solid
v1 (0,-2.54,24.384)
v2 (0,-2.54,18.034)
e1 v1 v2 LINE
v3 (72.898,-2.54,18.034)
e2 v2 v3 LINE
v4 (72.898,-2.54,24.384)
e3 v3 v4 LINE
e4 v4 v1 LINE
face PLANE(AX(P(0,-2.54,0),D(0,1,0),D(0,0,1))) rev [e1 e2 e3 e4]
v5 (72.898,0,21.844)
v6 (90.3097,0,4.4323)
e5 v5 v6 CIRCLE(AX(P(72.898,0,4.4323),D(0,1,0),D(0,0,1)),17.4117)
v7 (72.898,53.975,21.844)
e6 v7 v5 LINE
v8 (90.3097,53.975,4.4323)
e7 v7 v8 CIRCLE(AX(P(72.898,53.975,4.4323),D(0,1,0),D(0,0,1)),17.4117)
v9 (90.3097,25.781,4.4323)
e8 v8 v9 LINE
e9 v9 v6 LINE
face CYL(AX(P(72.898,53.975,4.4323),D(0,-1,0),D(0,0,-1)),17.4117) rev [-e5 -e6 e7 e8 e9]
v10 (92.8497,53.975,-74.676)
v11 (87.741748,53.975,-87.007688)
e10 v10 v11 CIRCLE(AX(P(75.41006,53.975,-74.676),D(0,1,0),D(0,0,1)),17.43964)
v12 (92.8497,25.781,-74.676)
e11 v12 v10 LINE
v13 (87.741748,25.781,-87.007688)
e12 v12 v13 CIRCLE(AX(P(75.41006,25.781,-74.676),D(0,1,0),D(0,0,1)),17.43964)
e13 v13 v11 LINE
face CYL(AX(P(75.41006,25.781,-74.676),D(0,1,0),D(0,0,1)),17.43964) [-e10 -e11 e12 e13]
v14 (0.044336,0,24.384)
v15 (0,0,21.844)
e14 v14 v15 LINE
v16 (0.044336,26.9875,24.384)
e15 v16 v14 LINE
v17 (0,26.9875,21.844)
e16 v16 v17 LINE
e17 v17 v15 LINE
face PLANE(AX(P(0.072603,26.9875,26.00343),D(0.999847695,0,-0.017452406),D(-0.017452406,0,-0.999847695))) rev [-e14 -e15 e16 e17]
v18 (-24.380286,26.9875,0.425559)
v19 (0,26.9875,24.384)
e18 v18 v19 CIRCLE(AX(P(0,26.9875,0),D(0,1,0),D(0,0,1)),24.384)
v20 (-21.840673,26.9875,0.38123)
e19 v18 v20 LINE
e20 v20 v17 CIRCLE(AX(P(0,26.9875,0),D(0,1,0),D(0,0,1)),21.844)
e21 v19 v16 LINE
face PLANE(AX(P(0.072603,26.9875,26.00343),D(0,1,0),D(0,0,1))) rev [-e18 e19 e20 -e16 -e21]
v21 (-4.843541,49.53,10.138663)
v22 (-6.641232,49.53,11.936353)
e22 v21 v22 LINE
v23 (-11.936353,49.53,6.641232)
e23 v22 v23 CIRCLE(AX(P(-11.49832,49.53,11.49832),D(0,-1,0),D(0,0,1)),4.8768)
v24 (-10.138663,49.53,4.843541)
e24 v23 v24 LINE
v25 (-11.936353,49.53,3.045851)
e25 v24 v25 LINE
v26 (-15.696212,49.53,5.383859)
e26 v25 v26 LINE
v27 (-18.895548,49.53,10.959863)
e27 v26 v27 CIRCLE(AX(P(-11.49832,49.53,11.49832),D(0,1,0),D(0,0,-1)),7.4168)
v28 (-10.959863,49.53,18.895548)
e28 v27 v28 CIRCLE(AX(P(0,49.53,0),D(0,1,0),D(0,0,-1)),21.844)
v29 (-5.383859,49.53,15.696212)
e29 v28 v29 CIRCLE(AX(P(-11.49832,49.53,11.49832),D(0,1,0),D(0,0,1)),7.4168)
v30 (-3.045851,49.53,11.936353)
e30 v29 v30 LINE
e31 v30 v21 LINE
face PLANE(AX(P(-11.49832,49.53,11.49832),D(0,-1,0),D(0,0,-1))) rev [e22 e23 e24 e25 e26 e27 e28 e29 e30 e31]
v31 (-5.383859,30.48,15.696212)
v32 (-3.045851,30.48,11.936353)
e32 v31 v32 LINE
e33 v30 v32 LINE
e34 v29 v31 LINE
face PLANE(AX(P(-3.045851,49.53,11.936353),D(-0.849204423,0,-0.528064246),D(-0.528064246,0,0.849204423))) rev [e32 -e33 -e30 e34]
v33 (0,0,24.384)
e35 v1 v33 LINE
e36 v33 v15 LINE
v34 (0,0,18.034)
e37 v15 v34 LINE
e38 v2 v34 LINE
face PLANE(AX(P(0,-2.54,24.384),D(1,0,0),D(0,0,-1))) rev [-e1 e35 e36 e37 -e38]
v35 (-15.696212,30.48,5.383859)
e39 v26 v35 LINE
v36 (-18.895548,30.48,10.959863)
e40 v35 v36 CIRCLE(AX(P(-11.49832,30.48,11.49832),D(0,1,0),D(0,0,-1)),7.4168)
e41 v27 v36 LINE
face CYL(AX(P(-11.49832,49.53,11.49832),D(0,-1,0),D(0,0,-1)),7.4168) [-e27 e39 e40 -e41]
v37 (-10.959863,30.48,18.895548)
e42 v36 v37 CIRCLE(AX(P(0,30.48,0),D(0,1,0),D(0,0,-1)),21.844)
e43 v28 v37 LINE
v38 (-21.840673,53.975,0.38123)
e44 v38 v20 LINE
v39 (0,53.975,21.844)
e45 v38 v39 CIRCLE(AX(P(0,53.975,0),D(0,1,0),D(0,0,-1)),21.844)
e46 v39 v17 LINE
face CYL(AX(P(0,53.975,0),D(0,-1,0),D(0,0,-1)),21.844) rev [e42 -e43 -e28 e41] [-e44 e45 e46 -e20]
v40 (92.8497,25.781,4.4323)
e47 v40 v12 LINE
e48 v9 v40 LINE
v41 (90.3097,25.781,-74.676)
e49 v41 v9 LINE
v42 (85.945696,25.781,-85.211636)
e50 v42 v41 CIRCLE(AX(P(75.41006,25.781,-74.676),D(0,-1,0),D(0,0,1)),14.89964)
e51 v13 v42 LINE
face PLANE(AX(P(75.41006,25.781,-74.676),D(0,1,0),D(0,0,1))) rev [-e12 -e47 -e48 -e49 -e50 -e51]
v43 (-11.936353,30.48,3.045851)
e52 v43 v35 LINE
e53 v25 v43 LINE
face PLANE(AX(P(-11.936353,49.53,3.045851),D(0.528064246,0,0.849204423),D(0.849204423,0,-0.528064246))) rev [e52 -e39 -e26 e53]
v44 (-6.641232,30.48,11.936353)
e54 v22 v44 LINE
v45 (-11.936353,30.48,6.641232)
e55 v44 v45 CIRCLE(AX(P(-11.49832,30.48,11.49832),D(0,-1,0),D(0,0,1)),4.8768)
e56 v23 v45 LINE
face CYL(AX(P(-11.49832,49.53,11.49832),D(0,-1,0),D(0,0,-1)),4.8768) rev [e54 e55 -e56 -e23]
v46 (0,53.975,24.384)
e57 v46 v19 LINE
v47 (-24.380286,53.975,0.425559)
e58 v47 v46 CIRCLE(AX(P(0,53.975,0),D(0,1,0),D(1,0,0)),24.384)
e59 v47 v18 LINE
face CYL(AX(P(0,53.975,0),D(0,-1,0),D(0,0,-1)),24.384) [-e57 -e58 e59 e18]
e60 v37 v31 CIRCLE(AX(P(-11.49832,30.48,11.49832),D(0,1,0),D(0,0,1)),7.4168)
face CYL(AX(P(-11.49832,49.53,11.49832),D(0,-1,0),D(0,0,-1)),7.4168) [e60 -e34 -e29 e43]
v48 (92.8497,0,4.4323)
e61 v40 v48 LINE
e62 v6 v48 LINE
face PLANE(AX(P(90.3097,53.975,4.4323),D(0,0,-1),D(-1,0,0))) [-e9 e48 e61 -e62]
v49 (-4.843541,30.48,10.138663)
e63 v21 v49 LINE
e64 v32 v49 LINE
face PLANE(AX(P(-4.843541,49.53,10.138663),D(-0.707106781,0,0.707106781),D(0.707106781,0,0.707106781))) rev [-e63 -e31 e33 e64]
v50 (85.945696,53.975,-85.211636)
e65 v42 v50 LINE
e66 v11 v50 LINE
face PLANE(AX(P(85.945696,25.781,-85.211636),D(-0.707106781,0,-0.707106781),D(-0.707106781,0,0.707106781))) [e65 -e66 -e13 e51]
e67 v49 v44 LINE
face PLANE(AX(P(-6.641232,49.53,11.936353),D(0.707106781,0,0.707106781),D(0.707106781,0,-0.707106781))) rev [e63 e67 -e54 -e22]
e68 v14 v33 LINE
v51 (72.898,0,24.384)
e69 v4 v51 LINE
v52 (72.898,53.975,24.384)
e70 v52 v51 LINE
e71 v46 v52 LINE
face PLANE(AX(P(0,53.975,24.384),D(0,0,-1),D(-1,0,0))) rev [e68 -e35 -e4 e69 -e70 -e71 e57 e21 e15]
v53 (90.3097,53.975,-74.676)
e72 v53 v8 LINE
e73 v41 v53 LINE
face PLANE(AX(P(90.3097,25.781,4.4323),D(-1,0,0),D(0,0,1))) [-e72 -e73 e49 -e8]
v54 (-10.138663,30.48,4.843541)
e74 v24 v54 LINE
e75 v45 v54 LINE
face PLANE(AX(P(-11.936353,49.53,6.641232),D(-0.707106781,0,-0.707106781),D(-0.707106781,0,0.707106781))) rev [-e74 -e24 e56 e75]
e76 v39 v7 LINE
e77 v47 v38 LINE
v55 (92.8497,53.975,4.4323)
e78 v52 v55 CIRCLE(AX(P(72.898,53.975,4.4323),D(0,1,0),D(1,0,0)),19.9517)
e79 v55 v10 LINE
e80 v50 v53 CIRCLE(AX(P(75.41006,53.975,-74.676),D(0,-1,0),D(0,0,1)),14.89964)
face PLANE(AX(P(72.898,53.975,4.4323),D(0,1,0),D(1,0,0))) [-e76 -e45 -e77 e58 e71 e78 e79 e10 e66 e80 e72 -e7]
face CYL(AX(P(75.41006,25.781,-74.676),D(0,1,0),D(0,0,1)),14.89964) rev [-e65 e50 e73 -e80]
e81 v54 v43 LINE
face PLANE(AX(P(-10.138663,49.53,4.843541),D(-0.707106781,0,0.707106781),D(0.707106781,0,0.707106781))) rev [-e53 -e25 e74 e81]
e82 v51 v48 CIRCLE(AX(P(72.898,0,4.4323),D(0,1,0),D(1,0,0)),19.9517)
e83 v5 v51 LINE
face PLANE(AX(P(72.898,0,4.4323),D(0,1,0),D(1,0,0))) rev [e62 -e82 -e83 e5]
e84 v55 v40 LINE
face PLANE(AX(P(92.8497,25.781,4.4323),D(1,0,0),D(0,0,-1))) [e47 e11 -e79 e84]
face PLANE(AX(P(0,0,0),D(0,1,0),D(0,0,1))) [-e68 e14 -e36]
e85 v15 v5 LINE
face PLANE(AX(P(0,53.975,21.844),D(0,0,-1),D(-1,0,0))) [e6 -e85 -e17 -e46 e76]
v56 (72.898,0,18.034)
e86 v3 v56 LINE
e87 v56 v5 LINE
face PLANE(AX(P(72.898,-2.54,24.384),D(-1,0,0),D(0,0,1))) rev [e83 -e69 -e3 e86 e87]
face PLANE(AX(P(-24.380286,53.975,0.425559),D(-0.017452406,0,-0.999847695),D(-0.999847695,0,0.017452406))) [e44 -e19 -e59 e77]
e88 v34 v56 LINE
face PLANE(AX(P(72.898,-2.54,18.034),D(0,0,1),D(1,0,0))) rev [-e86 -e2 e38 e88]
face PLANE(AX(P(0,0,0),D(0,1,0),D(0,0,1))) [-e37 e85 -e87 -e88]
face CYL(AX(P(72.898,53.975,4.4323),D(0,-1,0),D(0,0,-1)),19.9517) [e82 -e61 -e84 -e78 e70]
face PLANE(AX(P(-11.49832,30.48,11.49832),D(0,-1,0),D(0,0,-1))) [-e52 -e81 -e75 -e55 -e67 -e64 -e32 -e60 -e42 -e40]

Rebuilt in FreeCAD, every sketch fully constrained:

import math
import FreeCAD as App
import Part
import Sketcher

V = App.Vector
Q = App.Units.Quantity

doc = App.newDocument("Part")
body = doc.addObject("PartDesign::Body", "Body")

# Sketch on XZ plane
sketch1 = body.newObject("Sketcher::SketchObject", "Sketch")
sketch1.AttachmentSupport = (doc.getObject("XZ_Plane"), [""])
sketch1.MapMode = "FlatFace"
sketch1.addGeometry(Part.ArcOfCircle(Part.Circle(V(0, 0, 0), V(0, 0, 1), 21.844), math.radians(90), math.radians(179)), False)
sketch1.addGeometry(Part.LineSegment(V(-21.840673, 0.38123, 0), V(-24.380286, 0.425559, 0)), False)
sketch1.addGeometry(Part.ArcOfCircle(Part.Circle(V(0, 0, 0), V(0, 0, 1), 24.384), math.radians(90), math.radians(179)), False)
sketch1.addGeometry(Part.LineSegment(V(0, 24.384, 0), V(72.898, 24.384, 0)), False)
sketch1.addGeometry(Part.ArcOfCircle(Part.Circle(V(72.898, 4.4323, 0), V(0, 0, 1), 19.9517), math.radians(0), math.radians(90)), False)
sketch1.addGeometry(Part.LineSegment(V(92.8497, 4.4323, 0), V(90.3097, 4.4323, 0)), False)
sketch1.addGeometry(Part.ArcOfCircle(Part.Circle(V(72.898, 4.4323, 0), V(0, 0, 1), 17.4117), math.radians(0), math.radians(90)), False)
sketch1.addGeometry(Part.LineSegment(V(72.898, 21.844, 0), V(0, 21.844, 0)), False)
sketch1.addConstraint(Sketcher.Constraint("Coincident", 0, 2, 1, 1))
sketch1.addConstraint(Sketcher.Constraint("Coincident", 1, 2, 2, 2))
sketch1.addConstraint(Sketcher.Constraint("Tangent", 2, 1, 3, 1))
sketch1.addConstraint(Sketcher.Constraint("Tangent", 3, 2, 4, 2))
sketch1.addConstraint(Sketcher.Constraint("Coincident", 4, 1, 5, 1))
sketch1.addConstraint(Sketcher.Constraint("Coincident", 5, 2, 6, 1))
sketch1.addConstraint(Sketcher.Constraint("Tangent", 6, 2, 7, 1))
sketch1.addConstraint(Sketcher.Constraint("Tangent", 7, 2, 0, 1))
sketch1.addConstraint(Sketcher.Constraint("Horizontal", 3))
sketch1.addConstraint(Sketcher.Constraint("Horizontal", 5))
sketch1.addConstraint(Sketcher.Constraint("Horizontal", 7))
sketch1.addConstraint(Sketcher.Constraint("Coincident", 0, 3, -1, 1))
sketch1.addConstraint(Sketcher.Constraint("Coincident", 2, 3, -1, 1))
sketch1.addConstraint(Sketcher.Constraint("Coincident", 6, 3, 4, 3))
sketch1.addConstraint(Sketcher.Constraint("Horizontal", 6, 3, 4, 1))
sketch1.addConstraint(Sketcher.Constraint("Radius", 0, Q("0.86 in")))
sketch1.addConstraint(Sketcher.Constraint("Radius", 2, Q("0.96 in")))
sketch1.addConstraint(Sketcher.Constraint("Angle", 1, Q("179 deg")))
sketch1.addConstraint(Sketcher.Constraint("DistanceX", 3, 1, 3, 2, Q("2.87 in")))
sketch1.addConstraint(Sketcher.Constraint("Radius", 4, Q("0.7855 in")))
sketch1.addConstraint(Sketcher.Constraint("DistanceY", -1, 1, 0, 2, 0.38123))
pad1 = body.newObject("PartDesign::Pad", "Pad")
pad1.Profile = sketch1
pad1.Length = Q("2.125 in")
pad1.Reversed = True

# Sketch on XZ plane
sketch2 = body.newObject("Sketcher::SketchObject", "Sketch001")
sketch2.AttachmentSupport = (doc.getObject("XZ_Plane"), [""])
sketch2.MapMode = "FlatFace"
sketch2.AttachmentOffset = App.Placement(V(0, 0, -1.2 * 25.4), App.Rotation())
sketch2.addGeometry(Part.LineSegment(V(-4.843541, 10.138663, 0), V(-6.641232, 11.936353, 0)), False)
sketch2.addGeometry(Part.ArcOfCircle(Part.Circle(V(-11.49832, 11.49832, 0), V(0, 0, 1), 4.8768), math.radians(5.153238), math.radians(264.846762)), False)
sketch2.addGeometry(Part.LineSegment(V(-11.936353, 6.641232, 0), V(-10.138663, 4.843541, 0)), False)
sketch2.addGeometry(Part.LineSegment(V(-10.138663, 4.843541, 0), V(-11.936353, 3.045851, 0)), False)
sketch2.addGeometry(Part.LineSegment(V(-11.936353, 3.045851, 0), V(-15.696212, 5.383859, 0)), False)
sketch2.addGeometry(Part.ArcOfCircle(Part.Circle(V(-11.49832, 11.49832, 0), V(0, 0, 1), 7.4168), math.radians(-175.836684), math.radians(-124.471603)), False)
sketch2.addGeometry(Part.ArcOfCircle(Part.Circle(V(0, 0, 0), V(0, 0, 1), 21.844), math.radians(120.114743), math.radians(149.885257)), False)
sketch2.addGeometry(Part.ArcOfCircle(Part.Circle(V(-11.49832, 11.49832, 0), V(0, 0, 1), 7.4168), math.radians(34.471603), math.radians(85.836684)), False)
sketch2.addGeometry(Part.LineSegment(V(-5.383859, 15.696212, 0), V(-3.045851, 11.936353, 0)), False)
sketch2.addGeometry(Part.LineSegment(V(-3.045851, 11.936353, 0), V(-4.843541, 10.138663, 0)), False)
sketch2.addConstraint(Sketcher.Constraint("Coincident", 0, 2, 1, 1))
sketch2.addConstraint(Sketcher.Constraint("Coincident", 1, 2, 2, 1))
sketch2.addConstraint(Sketcher.Constraint("Coincident", 2, 2, 3, 1))
sketch2.addConstraint(Sketcher.Constraint("Coincident", 3, 2, 4, 1))
sketch2.addConstraint(Sketcher.Constraint("Coincident", 4, 2, 5, 2))
sketch2.addConstraint(Sketcher.Constraint("Coincident", 5, 1, 6, 2))
sketch2.addConstraint(Sketcher.Constraint("Coincident", 6, 1, 7, 2))
sketch2.addConstraint(Sketcher.Constraint("Coincident", 7, 1, 8, 1))
sketch2.addConstraint(Sketcher.Constraint("Coincident", 8, 2, 9, 1))
sketch2.addConstraint(Sketcher.Constraint("Coincident", 9, 2, 0, 1))
sketch2.addConstraint(Sketcher.Constraint("Coincident", 6, 3, -1, 1))
sketch2.addConstraint(Sketcher.Constraint("Coincident", 5, 3, 1, 3))
sketch2.addConstraint(Sketcher.Constraint("Coincident", 7, 3, 1, 3))
sketch2.addConstraint(Sketcher.Constraint("Equal", 5, 7))
sketch2.addConstraint(Sketcher.Constraint("Parallel", 0, 2))
sketch2.addConstraint(Sketcher.Constraint("Perpendicular", 2, 3))
sketch2.addConstraint(Sketcher.Constraint("Parallel", 3, 9))
sketch2.addConstraint(Sketcher.Constraint("Horizontal", 0, 2, 8, 2))
sketch2.addConstraint(Sketcher.Constraint("Vertical", 1, 2, 3, 2))
sketch2.addConstraint(Sketcher.Constraint("Equal", 0, 2))
sketch2.addConstraint(Sketcher.Constraint("Equal", 2, 3))
sketch2.addConstraint(Sketcher.Constraint("Equal", 4, 8))
sketch2.addConstraint(Sketcher.Constraint("Radius", 6, Q("0.86 in")))
sketch2.addConstraint(Sketcher.Constraint("Radius", 1, Q("0.192 in")))
sketch2.addConstraint(Sketcher.Constraint("Radius", 5, Q("0.292 in")))
sketch2.addConstraint(Sketcher.Constraint("Distance", 0, 2.542318))
sketch2.addConstraint(Sketcher.Constraint("DistanceX", 1, 3, -1, 1, 11.49832))
sketch2.addConstraint(Sketcher.Constraint("DistanceY", -1, 1, 1, 3, 11.49832))
sketch2.addConstraint(Sketcher.Constraint("DistanceX", 0, 2, -1, 1, 6.641232))
sketch2.addConstraint(Sketcher.Constraint("DistanceY", -1, 1, 1, 2, 6.641232))
sketch2.addConstraint(Sketcher.Constraint("DistanceX", 4, 2, -1, 1, 15.696212))
pad2 = body.newObject("PartDesign::Pad", "Pad001")
pad2.Profile = sketch2
pad2.Length = Q("0.75 in")
pad2.Reversed = True

# Sketch on an angled plane
sketch3 = body.newObject("Sketcher::SketchObject", "Sketch002")
sketch3.Placement = App.Placement(V(0, 0, 0), App.Rotation(V(-0.999847695, 0, 0.017452406), V(0, 1, 0), V(-0.017452406, 0, -0.999847695), "ZXY"))
sketch3.addGeometry(Part.LineSegment(V(0.38123, 26.9875, 0), V(0.38123, -3.468507, 0)), False)
sketch3.addGeometry(Part.LineSegment(V(0.38123, -3.468507, 0), V(35.248646, -3.468507, 0)), False)
sketch3.addGeometry(Part.LineSegment(V(35.248646, -3.468507, 0), V(35.248646, 26.9875, 0)), False)
sketch3.addGeometry(Part.LineSegment(V(35.248646, 26.9875, 0), V(0.38123, 26.9875, 0)), False)
sketch3.addConstraint(Sketcher.Constraint("Coincident", 0, 2, 1, 1))
sketch3.addConstraint(Sketcher.Constraint("Coincident", 1, 2, 2, 1))
sketch3.addConstraint(Sketcher.Constraint("Coincident", 2, 2, 3, 1))
sketch3.addConstraint(Sketcher.Constraint("Coincident", 3, 2, 0, 1))
sketch3.addConstraint(Sketcher.Constraint("Vertical", 0))
sketch3.addConstraint(Sketcher.Constraint("Horizontal", 1))
sketch3.addConstraint(Sketcher.Constraint("Vertical", 2))
sketch3.addConstraint(Sketcher.Constraint("Horizontal", 3))
sketch3.addConstraint(Sketcher.Constraint("DistanceY", -1, 1, 2, 2, Q("1.0625 in")))
sketch3.addConstraint(Sketcher.Constraint("DistanceX", 1, 1, 1, 2, 34.867416))
sketch3.addConstraint(Sketcher.Constraint("DistanceY", 0, 2, 0, 1, 30.456007))
sketch3.addConstraint(Sketcher.Constraint("DistanceX", -1, 1, 0, 2, 0.38123))
pocket1 = body.newObject("PartDesign::Pocket", "Pocket")
pocket1.Profile = sketch3
pocket1.Type = "ThroughAll"

# Sketch on XZ plane
sketch4 = body.newObject("Sketcher::SketchObject", "Sketch003")
sketch4.AttachmentSupport = (doc.getObject("XZ_Plane"), [""])
sketch4.MapMode = "FlatFace"
sketch4.AttachmentOffset = App.Placement(V(0, 0, -2.125 * 25.4), App.Rotation())
sketch4.addGeometry(Part.LineSegment(V(87.741748, -87.007688, 0), V(85.945696, -85.211636, 0)), False)
sketch4.addGeometry(Part.ArcOfCircle(Part.Circle(V(75.41006, -74.676, 0), V(0, 0, 1), 14.89964), math.radians(-45), math.radians(0)), False)
sketch4.addGeometry(Part.LineSegment(V(90.3097, -74.676, 0), V(90.3097, 4.4323, 0)), False)
sketch4.addGeometry(Part.LineSegment(V(90.3097, 4.4323, 0), V(92.8497, 4.4323, 0)), False)
sketch4.addGeometry(Part.LineSegment(V(92.8497, 4.4323, 0), V(92.8497, -74.676, 0)), False)
sketch4.addGeometry(Part.ArcOfCircle(Part.Circle(V(75.41006, -74.676, 0), V(0, 0, 1), 17.43964), math.radians(-45), math.radians(0)), False)
sketch4.addConstraint(Sketcher.Constraint("Coincident", 0, 2, 1, 1))
sketch4.addConstraint(Sketcher.Constraint("Tangent", 1, 2, 2, 1))
sketch4.addConstraint(Sketcher.Constraint("Coincident", 2, 2, 3, 1))
sketch4.addConstraint(Sketcher.Constraint("Coincident", 3, 2, 4, 1))
sketch4.addConstraint(Sketcher.Constraint("Tangent", 4, 2, 5, 2))
sketch4.addConstraint(Sketcher.Constraint("Coincident", 5, 1, 0, 1))
sketch4.addConstraint(Sketcher.Constraint("Vertical", 2))
sketch4.addConstraint(Sketcher.Constraint("Horizontal", 3))
sketch4.addConstraint(Sketcher.Constraint("Vertical", 4))
sketch4.addConstraint(Sketcher.Constraint("Coincident", 5, 3, 1, 3))
sketch4.addConstraint(Sketcher.Constraint("DistanceX", 3, 1, 3, 2, Q("0.1 in")))
sketch4.addConstraint(Sketcher.Constraint("Angle", 0, Q("135 deg")))
sketch4.addConstraint(Sketcher.Constraint("Radius", 1, Q("0.5866 in")))
sketch4.addConstraint(Sketcher.Constraint("DistanceY", 1, 3, -1, 1, Q("2.94 in")))
sketch4.addConstraint(Sketcher.Constraint("DistanceY", 2, 1, 2, 2, Q("3.1145 in")))
sketch4.addConstraint(Sketcher.Constraint("DistanceX", -1, 1, 1, 3, Q("2.9689 in")))
sketch4.addConstraint(Sketcher.Constraint("DistanceX", -1, 1, 0, 2, 85.945696))
pad3 = body.newObject("PartDesign::Pad", "Pad002")
pad3.Profile = sketch4
pad3.Length = Q("1.11 in")

# Sketch on XZ plane
sketch5 = body.newObject("Sketcher::SketchObject", "Sketch004")
sketch5.AttachmentSupport = (doc.getObject("XZ_Plane"), [""])
sketch5.MapMode = "FlatFace"
sketch5.addGeometry(Part.LineSegment(V(0, 24.384, 0), V(0, 18.034, 0)), False)
sketch5.addGeometry(Part.LineSegment(V(0, 18.034, 0), V(72.898, 18.034, 0)), False)
sketch5.addGeometry(Part.LineSegment(V(72.898, 18.034, 0), V(72.898, 24.384, 0)), False)
sketch5.addGeometry(Part.LineSegment(V(72.898, 24.384, 0), V(0, 24.384, 0)), False)
sketch5.addConstraint(Sketcher.Constraint("Coincident", 0, 2, 1, 1))
sketch5.addConstraint(Sketcher.Constraint("Coincident", 1, 2, 2, 1))
sketch5.addConstraint(Sketcher.Constraint("Coincident", 2, 2, 3, 1))
sketch5.addConstraint(Sketcher.Constraint("Coincident", 3, 2, 0, 1))
sketch5.addConstraint(Sketcher.Constraint("Vertical", 0))
sketch5.addConstraint(Sketcher.Constraint("Horizontal", 1))
sketch5.addConstraint(Sketcher.Constraint("Vertical", 2))
sketch5.addConstraint(Sketcher.Constraint("Horizontal", 3))
sketch5.addConstraint(Sketcher.Constraint("PointOnObject", 0, 2, -2))
sketch5.addConstraint(Sketcher.Constraint("DistanceX", 1, 1, 1, 2, Q("2.87 in")))
sketch5.addConstraint(Sketcher.Constraint("DistanceY", 0, 2, 0, 1, Q("0.25 in")))
sketch5.addConstraint(Sketcher.Constraint("DistanceY", -1, 1, 0, 2, Q("0.71 in")))
pad4 = body.newObject("PartDesign::Pad", "Pad003")
pad4.Profile = sketch5
pad4.Length = Q("0.1 in")

doc.recompute()
